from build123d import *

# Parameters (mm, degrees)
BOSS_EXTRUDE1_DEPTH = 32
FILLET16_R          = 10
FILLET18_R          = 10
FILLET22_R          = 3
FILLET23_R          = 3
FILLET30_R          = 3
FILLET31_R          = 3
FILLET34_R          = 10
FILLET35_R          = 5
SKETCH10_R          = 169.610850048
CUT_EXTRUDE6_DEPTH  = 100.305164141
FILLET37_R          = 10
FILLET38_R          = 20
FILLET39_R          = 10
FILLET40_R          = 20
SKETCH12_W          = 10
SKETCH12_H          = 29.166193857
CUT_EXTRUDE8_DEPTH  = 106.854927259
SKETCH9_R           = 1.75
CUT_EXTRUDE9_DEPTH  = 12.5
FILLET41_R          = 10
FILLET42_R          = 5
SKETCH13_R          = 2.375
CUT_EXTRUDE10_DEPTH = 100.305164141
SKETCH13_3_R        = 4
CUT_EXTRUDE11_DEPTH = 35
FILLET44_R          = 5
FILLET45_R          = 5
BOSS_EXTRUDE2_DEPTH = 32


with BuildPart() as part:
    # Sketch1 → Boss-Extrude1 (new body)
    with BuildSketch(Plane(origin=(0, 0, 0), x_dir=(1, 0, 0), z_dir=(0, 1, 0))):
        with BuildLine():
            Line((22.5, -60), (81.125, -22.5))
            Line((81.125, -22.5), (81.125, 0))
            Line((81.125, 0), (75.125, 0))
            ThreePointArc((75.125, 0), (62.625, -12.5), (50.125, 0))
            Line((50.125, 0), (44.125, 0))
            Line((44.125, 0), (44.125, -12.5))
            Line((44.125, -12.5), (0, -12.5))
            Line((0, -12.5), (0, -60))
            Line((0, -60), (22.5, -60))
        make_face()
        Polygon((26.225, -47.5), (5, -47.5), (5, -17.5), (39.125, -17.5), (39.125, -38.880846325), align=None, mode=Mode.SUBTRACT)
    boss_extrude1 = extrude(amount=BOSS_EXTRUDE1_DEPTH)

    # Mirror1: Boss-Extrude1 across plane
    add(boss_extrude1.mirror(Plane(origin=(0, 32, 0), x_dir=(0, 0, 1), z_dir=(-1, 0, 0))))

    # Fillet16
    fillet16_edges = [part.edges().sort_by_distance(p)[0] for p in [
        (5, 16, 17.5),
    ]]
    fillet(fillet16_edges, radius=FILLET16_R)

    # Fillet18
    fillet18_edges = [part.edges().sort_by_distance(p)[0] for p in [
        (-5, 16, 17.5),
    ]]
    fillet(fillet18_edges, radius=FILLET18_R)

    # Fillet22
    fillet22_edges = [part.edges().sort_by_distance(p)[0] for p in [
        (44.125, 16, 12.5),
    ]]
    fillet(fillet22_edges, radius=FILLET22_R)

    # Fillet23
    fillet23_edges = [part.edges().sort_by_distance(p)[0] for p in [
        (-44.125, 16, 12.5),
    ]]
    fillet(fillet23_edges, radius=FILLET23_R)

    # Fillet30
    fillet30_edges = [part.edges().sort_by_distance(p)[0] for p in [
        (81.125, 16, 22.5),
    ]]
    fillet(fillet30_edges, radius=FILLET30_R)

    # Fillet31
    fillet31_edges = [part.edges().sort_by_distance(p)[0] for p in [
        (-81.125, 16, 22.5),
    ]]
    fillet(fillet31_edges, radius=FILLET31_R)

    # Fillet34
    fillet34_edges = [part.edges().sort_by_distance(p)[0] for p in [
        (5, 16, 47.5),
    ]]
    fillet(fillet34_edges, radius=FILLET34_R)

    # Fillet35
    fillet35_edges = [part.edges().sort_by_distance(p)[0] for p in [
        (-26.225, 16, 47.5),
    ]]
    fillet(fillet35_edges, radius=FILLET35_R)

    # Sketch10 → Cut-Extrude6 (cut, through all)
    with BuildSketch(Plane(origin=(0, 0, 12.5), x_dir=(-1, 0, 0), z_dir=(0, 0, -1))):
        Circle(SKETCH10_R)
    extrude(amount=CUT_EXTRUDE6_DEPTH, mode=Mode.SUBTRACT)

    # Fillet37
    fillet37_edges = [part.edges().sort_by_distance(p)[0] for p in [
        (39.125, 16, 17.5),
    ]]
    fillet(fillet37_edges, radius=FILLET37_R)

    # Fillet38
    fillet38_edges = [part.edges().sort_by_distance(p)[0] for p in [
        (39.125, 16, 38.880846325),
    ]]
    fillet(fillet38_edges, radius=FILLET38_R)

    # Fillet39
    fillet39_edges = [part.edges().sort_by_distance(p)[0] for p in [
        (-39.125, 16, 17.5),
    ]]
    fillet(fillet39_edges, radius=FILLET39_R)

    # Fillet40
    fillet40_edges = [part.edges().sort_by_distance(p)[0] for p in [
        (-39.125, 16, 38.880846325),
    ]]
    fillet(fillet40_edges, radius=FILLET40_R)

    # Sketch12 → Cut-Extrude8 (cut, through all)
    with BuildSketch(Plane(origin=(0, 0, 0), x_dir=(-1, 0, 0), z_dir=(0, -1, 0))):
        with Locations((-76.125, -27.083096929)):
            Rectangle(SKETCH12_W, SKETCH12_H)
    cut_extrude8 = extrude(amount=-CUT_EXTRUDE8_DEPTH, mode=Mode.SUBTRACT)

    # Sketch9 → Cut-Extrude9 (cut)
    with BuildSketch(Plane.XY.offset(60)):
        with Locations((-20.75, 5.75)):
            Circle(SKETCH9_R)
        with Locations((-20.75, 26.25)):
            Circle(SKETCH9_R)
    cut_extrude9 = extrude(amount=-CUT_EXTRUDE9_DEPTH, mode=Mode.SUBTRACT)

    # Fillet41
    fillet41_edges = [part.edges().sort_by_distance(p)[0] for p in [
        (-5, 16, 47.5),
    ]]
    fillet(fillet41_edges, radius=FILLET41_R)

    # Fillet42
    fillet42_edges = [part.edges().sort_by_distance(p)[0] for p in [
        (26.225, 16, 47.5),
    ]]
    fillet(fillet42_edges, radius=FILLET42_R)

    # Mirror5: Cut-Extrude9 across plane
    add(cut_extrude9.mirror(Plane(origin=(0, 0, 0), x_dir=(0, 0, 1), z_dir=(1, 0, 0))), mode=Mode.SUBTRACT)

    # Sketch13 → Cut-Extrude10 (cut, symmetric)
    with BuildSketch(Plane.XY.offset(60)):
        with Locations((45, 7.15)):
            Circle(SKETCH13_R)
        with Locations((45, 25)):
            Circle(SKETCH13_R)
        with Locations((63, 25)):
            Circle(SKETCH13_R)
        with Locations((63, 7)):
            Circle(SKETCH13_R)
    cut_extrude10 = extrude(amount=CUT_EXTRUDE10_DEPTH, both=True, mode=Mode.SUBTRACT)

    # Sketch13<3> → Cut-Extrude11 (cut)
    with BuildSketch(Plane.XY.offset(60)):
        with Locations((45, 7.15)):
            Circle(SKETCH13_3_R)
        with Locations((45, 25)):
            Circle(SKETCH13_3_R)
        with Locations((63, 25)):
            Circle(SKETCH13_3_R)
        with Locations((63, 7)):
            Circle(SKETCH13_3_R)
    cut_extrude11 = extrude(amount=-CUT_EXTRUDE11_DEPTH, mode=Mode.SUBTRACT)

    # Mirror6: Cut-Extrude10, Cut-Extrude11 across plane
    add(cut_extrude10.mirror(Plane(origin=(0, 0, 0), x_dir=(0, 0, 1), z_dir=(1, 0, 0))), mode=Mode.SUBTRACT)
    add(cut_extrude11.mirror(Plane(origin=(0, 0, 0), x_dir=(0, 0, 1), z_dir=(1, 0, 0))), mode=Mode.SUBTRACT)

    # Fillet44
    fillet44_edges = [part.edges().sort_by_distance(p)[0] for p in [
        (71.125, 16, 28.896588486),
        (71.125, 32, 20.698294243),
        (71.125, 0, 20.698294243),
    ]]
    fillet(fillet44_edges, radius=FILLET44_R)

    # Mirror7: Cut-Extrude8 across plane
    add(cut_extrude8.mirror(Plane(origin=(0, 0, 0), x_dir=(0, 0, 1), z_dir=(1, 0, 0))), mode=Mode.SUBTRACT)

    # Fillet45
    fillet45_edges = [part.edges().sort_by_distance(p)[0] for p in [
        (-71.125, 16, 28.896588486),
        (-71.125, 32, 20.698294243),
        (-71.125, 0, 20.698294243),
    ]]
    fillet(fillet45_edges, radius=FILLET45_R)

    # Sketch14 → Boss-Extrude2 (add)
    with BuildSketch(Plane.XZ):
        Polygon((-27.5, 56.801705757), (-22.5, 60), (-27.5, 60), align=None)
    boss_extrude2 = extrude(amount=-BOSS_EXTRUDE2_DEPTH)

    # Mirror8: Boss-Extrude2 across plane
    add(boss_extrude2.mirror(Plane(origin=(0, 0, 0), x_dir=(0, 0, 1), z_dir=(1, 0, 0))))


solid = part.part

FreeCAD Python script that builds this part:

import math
import FreeCAD as App
import Part
import Sketcher
from FreeCAD import Vector
Q = App.Units.Quantity


def edges_at(feature, points):
    """Names of the edges that pass closest to the given points."""
    edges = feature.Shape.Edges
    near = lambda p: min(range(len(edges)), key=lambda i: edges[i].distToShape(Part.Vertex(*p))[0])
    return sorted({f"Edge{near(p) + 1}" for p in points})

doc = App.newDocument("Part")
body = doc.addObject("PartDesign::Body", "Body")

sketch1 = body.newObject("Sketcher::SketchObject", "Sketch")
sketch1.AttachmentSupport = (doc.getObject("XZ_Plane"), [""])
sketch1.MapMode = "FlatFace"
sketch1.addGeometry([
    Part.LineSegment(Vector(22.5, 60, 0), Vector(81.125, 22.5, 0)),
    Part.LineSegment(Vector(81.125, 22.5, 0), Vector(81.125, 0, 0)),
    Part.LineSegment(Vector(81.125, 0, 0), Vector(75.125, 0, 0)),
    Part.ArcOfCircle(Part.Circle(Vector(62.625, 0, 0), Vector(0, 0, 1), 12.5), math.radians(0), math.radians(180)),
    Part.LineSegment(Vector(50.125, 0, 0), Vector(44.125, 0, 0)),
    Part.LineSegment(Vector(44.125, 0, 0), Vector(44.125, 12.5, 0)),
    Part.LineSegment(Vector(44.125, 12.5, 0), Vector(0, 12.5, 0)),
    Part.LineSegment(Vector(0, 12.5, 0), Vector(0, 60, 0)),
    Part.LineSegment(Vector(0, 60, 0), Vector(22.5, 60, 0)),
    Part.LineSegment(Vector(39.125, 38.880846, 0), Vector(26.225, 47.5, 0)),
    Part.LineSegment(Vector(26.225, 47.5, 0), Vector(5, 47.5, 0)),
    Part.LineSegment(Vector(5, 47.5, 0), Vector(5, 17.5, 0)),
    Part.LineSegment(Vector(5, 17.5, 0), Vector(39.125, 17.5, 0)),
    Part.LineSegment(Vector(39.125, 17.5, 0), Vector(39.125, 38.880846, 0)),
], False)
sketch1.addConstraint([
    Sketcher.Constraint("Coincident", 0, 2, 1, 1),
    Sketcher.Constraint("Coincident", 1, 2, 2, 1),
    Sketcher.Constraint("Coincident", 2, 2, 3, 1),
    Sketcher.Constraint("Coincident", 3, 2, 4, 1),
    Sketcher.Constraint("Coincident", 4, 2, 5, 1),
    Sketcher.Constraint("Coincident", 5, 2, 6, 1),
    Sketcher.Constraint("Coincident", 6, 2, 7, 1),
    Sketcher.Constraint("Coincident", 7, 2, 8, 1),
    Sketcher.Constraint("Coincident", 8, 2, 0, 1),
    Sketcher.Constraint("Coincident", 9, 2, 10, 1),
    Sketcher.Constraint("Coincident", 10, 2, 11, 1),
    Sketcher.Constraint("Coincident", 11, 2, 12, 1),
    Sketcher.Constraint("Coincident", 12, 2, 13, 1),
    Sketcher.Constraint("Coincident", 13, 2, 9, 1),
    Sketcher.Constraint("Vertical", 1),
    Sketcher.Constraint("Horizontal", 2),
    Sketcher.Constraint("Horizontal", 4),
    Sketcher.Constraint("Vertical", 5),
    Sketcher.Constraint("Horizontal", 6),
    Sketcher.Constraint("Vertical", 7),
    Sketcher.Constraint("Horizontal", 8),
    Sketcher.Constraint("Horizontal", 10),
    Sketcher.Constraint("Vertical", 11),
    Sketcher.Constraint("Horizontal", 12),
    Sketcher.Constraint("Vertical", 13),
    Sketcher.Constraint("PointOnObject", 3, 3, -1),
    Sketcher.Constraint("PointOnObject", 1, 2, -1),
    Sketcher.Constraint("PointOnObject", 3, 2, -1),
    Sketcher.Constraint("PointOnObject", 6, 2, -2),
    Sketcher.Constraint("Equal", 2, 4),
    Sketcher.Constraint("Equal", 8, 1),
    Sketcher.Constraint("Radius", 3, Q("12.5 mm")),
    Sketcher.Constraint("DistanceX", 2, 2, 2, 1, Q("6 mm")),
    Sketcher.Constraint("DistanceY", 11, 2, 11, 1, Q("30 mm")),
    Sketcher.Constraint("DistanceX", 8, 1, 8, 2, Q("22.5 mm")),
    Sketcher.Constraint("DistanceY", 5, 1, 5, 2, Q("12.5 mm")),
    Sketcher.Constraint("DistanceY", 7, 1, 7, 2, Q("47.5 mm")),
    Sketcher.Constraint("DistanceX", -1, 1, 10, 2, Q("5 mm")),
    Sketcher.Constraint("DistanceY", 5, 2, 9, 2, Q("35 mm")),
    Sketcher.Constraint("DistanceX", 12, 2, 5, 2, Q("5 mm")),
    Sketcher.Constraint("DistanceX", 9, 2, 5, 2, Q("17.9 mm")),
    Sketcher.Constraint("DistanceX", 6, 2, 6, 1, Q("44.125 mm")),
    Sketcher.Constraint("DistanceY", 13, 1, 13, 2, Q("21.380846 mm")),
])
pad1 = body.newObject("PartDesign::Pad", "Pad")
pad1.Profile = sketch1
pad1.Length = 32
pad1.Reversed = True
doc.recompute()

mirrored = body.newObject("PartDesign::Mirrored", "Mirrored")
mirrored.Originals = [pad1]
mirrored.MirrorPlane = (doc.getObject("YZ_Plane"), [""])
body.Tip = mirrored
doc.recompute()

fillet = body.newObject("PartDesign::Fillet", "Fillet")
fillet.Base = (mirrored, edges_at(mirrored, [(5, 16, 17.5)]))
fillet.Radius = 10
doc.recompute()

fillet2 = body.newObject("PartDesign::Fillet", "Fillet001")
fillet2.Base = (fillet, edges_at(fillet, [(-5, 16, 17.5)]))
fillet2.Radius = 10
doc.recompute()

fillet3 = body.newObject("PartDesign::Fillet", "Fillet002")
fillet3.Base = (fillet2, edges_at(fillet2, [(44.125, 16, 12.5)]))
fillet3.Radius = 3
doc.recompute()

fillet4 = body.newObject("PartDesign::Fillet", "Fillet003")
fillet4.Base = (fillet3, edges_at(fillet3, [(-44.125, 16, 12.5)]))
fillet4.Radius = 3
doc.recompute()

fillet5 = body.newObject("PartDesign::Fillet", "Fillet004")
fillet5.Base = (fillet4, edges_at(fillet4, [(81.125, 16, 22.5)]))
fillet5.Radius = 3
doc.recompute()

fillet6 = body.newObject("PartDesign::Fillet", "Fillet005")
fillet6.Base = (fillet5, edges_at(fillet5, [(-81.125, 16, 22.5)]))
fillet6.Radius = 3
doc.recompute()

fillet7 = body.newObject("PartDesign::Fillet", "Fillet006")
fillet7.Base = (fillet6, edges_at(fillet6, [(5, 16, 47.5)]))
fillet7.Radius = 10
doc.recompute()

fillet8 = body.newObject("PartDesign::Fillet", "Fillet007")
fillet8.Base = (fillet7, edges_at(fillet7, [(-26.225, 16, 47.5)]))
fillet8.Radius = 5

sketch2 = body.newObject("Sketcher::SketchObject", "Sketch001")
sketch2.AttachmentSupport = (doc.getObject("XY_Plane"), [""])
sketch2.MapMode = "FlatFace"
sketch2.AttachmentOffset = App.Placement(Vector(0, 0, 12.5), App.Rotation())
sketch2.addGeometry(Part.Circle(Vector(0, 0, 0), Vector(0, 0, 1), 169.61085), False)
sketch2.addConstraint([
    Sketcher.Constraint("Coincident", 0, 3, -1, 1),
    Sketcher.Constraint("Diameter", 0, Q("339.2217 mm")),
])
pocket1 = body.newObject("PartDesign::Pocket", "Pocket")
pocket1.Profile = sketch2
pocket1.Type = "ThroughAll"
doc.recompute()

fillet9 = body.newObject("PartDesign::Fillet", "Fillet008")
fillet9.Base = (pocket1, edges_at(pocket1, [(39.125, 16, 17.5)]))
fillet9.Radius = 10
doc.recompute()

fillet10 = body.newObject("PartDesign::Fillet", "Fillet009")
fillet10.Base = (fillet9, edges_at(fillet9, [(39.125, 16, 38.881)]))
fillet10.Radius = 20
doc.recompute()

fillet11 = body.newObject("PartDesign::Fillet", "Fillet010")
fillet11.Base = (fillet10, edges_at(fillet10, [(-39.125, 16, 17.5)]))
fillet11.Radius = 10
doc.recompute()

fillet12 = body.newObject("PartDesign::Fillet", "Fillet011")
fillet12.Base = (fillet11, edges_at(fillet11, [(-39.125, 16, 38.881)]))
fillet12.Radius = 20

sketch3 = body.newObject("Sketcher::SketchObject", "Sketch002")
sketch3.AttachmentSupport = (doc.getObject("XZ_Plane"), [""])
sketch3.MapMode = "FlatFace"
sketch3.addGeometry([
    Part.LineSegment(Vector(81.125, 12.5, 0), Vector(81.125, 41.666194, 0)),
    Part.LineSegment(Vector(81.125, 41.666194, 0), Vector(71.125, 41.666194, 0)),
    Part.LineSegment(Vector(71.125, 41.666194, 0), Vector(71.125, 12.5, 0)),
    Part.LineSegment(Vector(71.125, 12.5, 0), Vector(81.125, 12.5, 0)),
], False)
sketch3.addConstraint([
    Sketcher.Constraint("Coincident", 0, 2, 1, 1),
    Sketcher.Constraint("Coincident", 1, 2, 2, 1),
    Sketcher.Constraint("Coincident", 2, 2, 3, 1),
    Sketcher.Constraint("Coincident", 3, 2, 0, 1),
    Sketcher.Constraint("Vertical", 0),
    Sketcher.Constraint("Horizontal", 1),
    Sketcher.Constraint("Vertical", 2),
    Sketcher.Constraint("Horizontal", 3),
    Sketcher.Constraint("DistanceX", 1, 2, 1, 1, Q("10 mm")),
    Sketcher.Constraint("DistanceY", -1, 1, 2, 2, Q("12.5 mm")),
    Sketcher.Constraint("DistanceX", -1, 1, 0, 2, Q("81.125 mm")),
    Sketcher.Constraint("DistanceY", 0, 1, 0, 2, Q("29.166194 mm")),
])
pocket2 = body.newObject("PartDesign::Pocket", "Pocket001")
pocket2.Profile = sketch3
pocket2.Type = "ThroughAll"

sketch4 = body.newObject("Sketcher::SketchObject", "Sketch003")
sketch4.AttachmentSupport = (doc.getObject("XY_Plane"), [""])
sketch4.MapMode = "FlatFace"
sketch4.AttachmentOffset = App.Placement(Vector(0, 0, 60), App.Rotation())
sketch4.addGeometry([
    Part.Circle(Vector(-20.75, 5.75, 0), Vector(0, 0, 1), 1.75),
    Part.Circle(Vector(-20.75, 26.25, 0), Vector(0, 0, 1), 1.75),
], False)
sketch4.addConstraint([
    Sketcher.Constraint("Equal", 0, 1),
    Sketcher.Constraint("Vertical", 0, 3, 1, 3),
    Sketcher.Constraint("Diameter", 0, Q("3.5 mm")),
    Sketcher.Constraint("DistanceY", 0, 3, 1, 3, Q("20.5 mm")),
    Sketcher.Constraint("DistanceX", 0, 3, -1, 1, Q("20.75 mm")),
    Sketcher.Constraint("DistanceY", -1, 1, 0, 3, Q("5.75 mm")),
])
pocket3 = body.newObject("PartDesign::Pocket", "Pocket002")
pocket3.Profile = sketch4
pocket3.Length = 12.5
doc.recompute()

fillet13 = body.newObject("PartDesign::Fillet", "Fillet012")
fillet13.Base = (pocket3, edges_at(pocket3, [(-5, 16, 47.5)]))
fillet13.Radius = 10
doc.recompute()

fillet14 = body.newObject("PartDesign::Fillet", "Fillet013")
fillet14.Base = (fillet13, edges_at(fillet13, [(26.225, 16, 47.5)]))
fillet14.Radius = 5
doc.recompute()

mirrored2 = body.newObject("PartDesign::Mirrored", "Mirrored001")
mirrored2.Originals = [pocket3]
mirrored2.MirrorPlane = (doc.getObject("YZ_Plane"), [""])
body.Tip = mirrored2

sketch5 = body.newObject("Sketcher::SketchObject", "Sketch004")
sketch5.AttachmentSupport = (doc.getObject("XY_Plane"), [""])
sketch5.MapMode = "FlatFace"
sketch5.AttachmentOffset = App.Placement(Vector(0, 0, 60), App.Rotation())
sketch5.addGeometry([
    Part.Circle(Vector(45, 7.15, 0), Vector(0, 0, 1), 2.375),
    Part.Circle(Vector(45, 25, 0), Vector(0, 0, 1), 2.375),
    Part.Circle(Vector(63, 25, 0), Vector(0, 0, 1), 2.375),
    Part.Circle(Vector(63, 7, 0), Vector(0, 0, 1), 2.375),
], False)
sketch5.addConstraint([
    Sketcher.Constraint("Equal", 0, 1),
    Sketcher.Constraint("Equal", 1, 2),
    Sketcher.Constraint("Equal", 2, 3),
    Sketcher.Constraint("Horizontal", 1, 3, 2, 3),
    Sketcher.Constraint("Vertical", 0, 3, 1, 3),
    Sketcher.Constraint("Vertical", 2, 3, 3, 3),
    Sketcher.Constraint("Diameter", 0, Q("4.75 mm")),
    Sketcher.Constraint("DistanceX", -1, 1, 0, 3, Q("45 mm")),
    Sketcher.Constraint("DistanceY", -1, 1, 1, 3, Q("25 mm")),
    Sketcher.Constraint("DistanceX", -1, 1, 2, 3, Q("63 mm")),
    Sketcher.Constraint("DistanceY", -1, 1, 3, 3, Q("7 mm")),
    Sketcher.Constraint("DistanceY", -1, 1, 0, 3, Q("7.15 mm")),
])
pocket4 = body.newObject("PartDesign::Pocket", "Pocket003")
pocket4.Profile = sketch5
pocket4.Length = 200.610328
pocket4.Midplane = True

sketch6 = body.newObject("Sketcher::SketchObject", "Sketch005")
sketch6.AttachmentSupport = (doc.getObject("XY_Plane"), [""])
sketch6.MapMode = "FlatFace"
sketch6.AttachmentOffset = App.Placement(Vector(0, 0, 60), App.Rotation())
sketch6.addGeometry([
    Part.Circle(Vector(45, 7.15, 0), Vector(0, 0, 1), 4),
    Part.Circle(Vector(45, 25, 0), Vector(0, 0, 1), 4),
    Part.Circle(Vector(63, 25, 0), Vector(0, 0, 1), 4),
    Part.Circle(Vector(63, 7, 0), Vector(0, 0, 1), 4),
], False)
sketch6.addConstraint([
    Sketcher.Constraint("Equal", 0, 1),
    Sketcher.Constraint("Equal", 1, 2),
    Sketcher.Constraint("Equal", 2, 3),
    Sketcher.Constraint("Horizontal", 1, 3, 2, 3),
    Sketcher.Constraint("Vertical", 0, 3, 1, 3),
    Sketcher.Constraint("Vertical", 2, 3, 3, 3),
    Sketcher.Constraint("Diameter", 0, Q("8 mm")),
    Sketcher.Constraint("DistanceX", -1, 1, 0, 3, Q("45 mm")),
    Sketcher.Constraint("DistanceY", -1, 1, 1, 3, Q("25 mm")),
    Sketcher.Constraint("DistanceX", -1, 1, 2, 3, Q("63 mm")),
    Sketcher.Constraint("DistanceY", -1, 1, 3, 3, Q("7 mm")),
    Sketcher.Constraint("DistanceY", -1, 1, 0, 3, Q("7.15 mm")),
])
pocket5 = body.newObject("PartDesign::Pocket", "Pocket004")
pocket5.Profile = sketch6
pocket5.Length = 35
doc.recompute()

mirrored3 = body.newObject("PartDesign::Mirrored", "Mirrored002")
mirrored3.Originals = [pocket4, pocket5]
mirrored3.MirrorPlane = (doc.getObject("YZ_Plane"), [""])
body.Tip = mirrored3
doc.recompute()

fillet15 = body.newObject("PartDesign::Fillet", "Fillet014")
fillet15.Base = (mirrored3, edges_at(mirrored3, [(71.125, 16, 28.897), (71.125, 32, 20.698), (71.125, 0, 20.698)]))
fillet15.Radius = 5
doc.recompute()

mirrored4 = body.newObject("PartDesign::Mirrored", "Mirrored003")
mirrored4.Originals = [pocket2]
mirrored4.MirrorPlane = (doc.getObject("YZ_Plane"), [""])
body.Tip = mirrored4
doc.recompute()

fillet16 = body.newObject("PartDesign::Fillet", "Fillet015")
fillet16.Base = (mirrored4, edges_at(mirrored4, [(-71.125, 16, 28.897), (-71.125, 32, 20.698), (-71.125, 0, 20.698)]))
fillet16.Radius = 5

sketch7 = body.newObject("Sketcher::SketchObject", "Sketch006")
sketch7.AttachmentSupport = (doc.getObject("XZ_Plane"), [""])
sketch7.MapMode = "FlatFace"
sketch7.addGeometry([
    Part.LineSegment(Vector(-27.5, 56.801706, 0), Vector(-22.5, 60, 0)),
    Part.LineSegment(Vector(-22.5, 60, 0), Vector(-27.5, 60, 0)),
    Part.LineSegment(Vector(-27.5, 60, 0), Vector(-27.5, 56.801706, 0)),
], False)
sketch7.addConstraint([
    Sketcher.Constraint("Coincident", 0, 2, 1, 1),
    Sketcher.Constraint("Coincident", 1, 2, 2, 1),
    Sketcher.Constraint("Coincident", 2, 2, 0, 1),
    Sketcher.Constraint("Horizontal", 1),
    Sketcher.Constraint("Vertical", 2),
    Sketcher.Constraint("DistanceX", 1, 2, 1, 1, Q("5 mm")),
    Sketcher.Constraint("DistanceY", -1, 1, 0, 2, Q("60 mm")),
    Sketcher.Constraint("DistanceX", 0, 2, -1, 1, Q("22.5 mm")),
    Sketcher.Constraint("Distance", 0, Q("5.93541 mm")),
])
pad2 = body.newObject("PartDesign::Pad", "Pad001")
pad2.Profile = sketch7
pad2.Length = 32
pad2.Reversed = True
doc.recompute()

mirrored5 = body.newObject("PartDesign::Mirrored", "Mirrored004")
mirrored5.Originals = [pad2]
mirrored5.MirrorPlane = (doc.getObject("YZ_Plane"), [""])
body.Tip = mirrored5

doc.recompute()
